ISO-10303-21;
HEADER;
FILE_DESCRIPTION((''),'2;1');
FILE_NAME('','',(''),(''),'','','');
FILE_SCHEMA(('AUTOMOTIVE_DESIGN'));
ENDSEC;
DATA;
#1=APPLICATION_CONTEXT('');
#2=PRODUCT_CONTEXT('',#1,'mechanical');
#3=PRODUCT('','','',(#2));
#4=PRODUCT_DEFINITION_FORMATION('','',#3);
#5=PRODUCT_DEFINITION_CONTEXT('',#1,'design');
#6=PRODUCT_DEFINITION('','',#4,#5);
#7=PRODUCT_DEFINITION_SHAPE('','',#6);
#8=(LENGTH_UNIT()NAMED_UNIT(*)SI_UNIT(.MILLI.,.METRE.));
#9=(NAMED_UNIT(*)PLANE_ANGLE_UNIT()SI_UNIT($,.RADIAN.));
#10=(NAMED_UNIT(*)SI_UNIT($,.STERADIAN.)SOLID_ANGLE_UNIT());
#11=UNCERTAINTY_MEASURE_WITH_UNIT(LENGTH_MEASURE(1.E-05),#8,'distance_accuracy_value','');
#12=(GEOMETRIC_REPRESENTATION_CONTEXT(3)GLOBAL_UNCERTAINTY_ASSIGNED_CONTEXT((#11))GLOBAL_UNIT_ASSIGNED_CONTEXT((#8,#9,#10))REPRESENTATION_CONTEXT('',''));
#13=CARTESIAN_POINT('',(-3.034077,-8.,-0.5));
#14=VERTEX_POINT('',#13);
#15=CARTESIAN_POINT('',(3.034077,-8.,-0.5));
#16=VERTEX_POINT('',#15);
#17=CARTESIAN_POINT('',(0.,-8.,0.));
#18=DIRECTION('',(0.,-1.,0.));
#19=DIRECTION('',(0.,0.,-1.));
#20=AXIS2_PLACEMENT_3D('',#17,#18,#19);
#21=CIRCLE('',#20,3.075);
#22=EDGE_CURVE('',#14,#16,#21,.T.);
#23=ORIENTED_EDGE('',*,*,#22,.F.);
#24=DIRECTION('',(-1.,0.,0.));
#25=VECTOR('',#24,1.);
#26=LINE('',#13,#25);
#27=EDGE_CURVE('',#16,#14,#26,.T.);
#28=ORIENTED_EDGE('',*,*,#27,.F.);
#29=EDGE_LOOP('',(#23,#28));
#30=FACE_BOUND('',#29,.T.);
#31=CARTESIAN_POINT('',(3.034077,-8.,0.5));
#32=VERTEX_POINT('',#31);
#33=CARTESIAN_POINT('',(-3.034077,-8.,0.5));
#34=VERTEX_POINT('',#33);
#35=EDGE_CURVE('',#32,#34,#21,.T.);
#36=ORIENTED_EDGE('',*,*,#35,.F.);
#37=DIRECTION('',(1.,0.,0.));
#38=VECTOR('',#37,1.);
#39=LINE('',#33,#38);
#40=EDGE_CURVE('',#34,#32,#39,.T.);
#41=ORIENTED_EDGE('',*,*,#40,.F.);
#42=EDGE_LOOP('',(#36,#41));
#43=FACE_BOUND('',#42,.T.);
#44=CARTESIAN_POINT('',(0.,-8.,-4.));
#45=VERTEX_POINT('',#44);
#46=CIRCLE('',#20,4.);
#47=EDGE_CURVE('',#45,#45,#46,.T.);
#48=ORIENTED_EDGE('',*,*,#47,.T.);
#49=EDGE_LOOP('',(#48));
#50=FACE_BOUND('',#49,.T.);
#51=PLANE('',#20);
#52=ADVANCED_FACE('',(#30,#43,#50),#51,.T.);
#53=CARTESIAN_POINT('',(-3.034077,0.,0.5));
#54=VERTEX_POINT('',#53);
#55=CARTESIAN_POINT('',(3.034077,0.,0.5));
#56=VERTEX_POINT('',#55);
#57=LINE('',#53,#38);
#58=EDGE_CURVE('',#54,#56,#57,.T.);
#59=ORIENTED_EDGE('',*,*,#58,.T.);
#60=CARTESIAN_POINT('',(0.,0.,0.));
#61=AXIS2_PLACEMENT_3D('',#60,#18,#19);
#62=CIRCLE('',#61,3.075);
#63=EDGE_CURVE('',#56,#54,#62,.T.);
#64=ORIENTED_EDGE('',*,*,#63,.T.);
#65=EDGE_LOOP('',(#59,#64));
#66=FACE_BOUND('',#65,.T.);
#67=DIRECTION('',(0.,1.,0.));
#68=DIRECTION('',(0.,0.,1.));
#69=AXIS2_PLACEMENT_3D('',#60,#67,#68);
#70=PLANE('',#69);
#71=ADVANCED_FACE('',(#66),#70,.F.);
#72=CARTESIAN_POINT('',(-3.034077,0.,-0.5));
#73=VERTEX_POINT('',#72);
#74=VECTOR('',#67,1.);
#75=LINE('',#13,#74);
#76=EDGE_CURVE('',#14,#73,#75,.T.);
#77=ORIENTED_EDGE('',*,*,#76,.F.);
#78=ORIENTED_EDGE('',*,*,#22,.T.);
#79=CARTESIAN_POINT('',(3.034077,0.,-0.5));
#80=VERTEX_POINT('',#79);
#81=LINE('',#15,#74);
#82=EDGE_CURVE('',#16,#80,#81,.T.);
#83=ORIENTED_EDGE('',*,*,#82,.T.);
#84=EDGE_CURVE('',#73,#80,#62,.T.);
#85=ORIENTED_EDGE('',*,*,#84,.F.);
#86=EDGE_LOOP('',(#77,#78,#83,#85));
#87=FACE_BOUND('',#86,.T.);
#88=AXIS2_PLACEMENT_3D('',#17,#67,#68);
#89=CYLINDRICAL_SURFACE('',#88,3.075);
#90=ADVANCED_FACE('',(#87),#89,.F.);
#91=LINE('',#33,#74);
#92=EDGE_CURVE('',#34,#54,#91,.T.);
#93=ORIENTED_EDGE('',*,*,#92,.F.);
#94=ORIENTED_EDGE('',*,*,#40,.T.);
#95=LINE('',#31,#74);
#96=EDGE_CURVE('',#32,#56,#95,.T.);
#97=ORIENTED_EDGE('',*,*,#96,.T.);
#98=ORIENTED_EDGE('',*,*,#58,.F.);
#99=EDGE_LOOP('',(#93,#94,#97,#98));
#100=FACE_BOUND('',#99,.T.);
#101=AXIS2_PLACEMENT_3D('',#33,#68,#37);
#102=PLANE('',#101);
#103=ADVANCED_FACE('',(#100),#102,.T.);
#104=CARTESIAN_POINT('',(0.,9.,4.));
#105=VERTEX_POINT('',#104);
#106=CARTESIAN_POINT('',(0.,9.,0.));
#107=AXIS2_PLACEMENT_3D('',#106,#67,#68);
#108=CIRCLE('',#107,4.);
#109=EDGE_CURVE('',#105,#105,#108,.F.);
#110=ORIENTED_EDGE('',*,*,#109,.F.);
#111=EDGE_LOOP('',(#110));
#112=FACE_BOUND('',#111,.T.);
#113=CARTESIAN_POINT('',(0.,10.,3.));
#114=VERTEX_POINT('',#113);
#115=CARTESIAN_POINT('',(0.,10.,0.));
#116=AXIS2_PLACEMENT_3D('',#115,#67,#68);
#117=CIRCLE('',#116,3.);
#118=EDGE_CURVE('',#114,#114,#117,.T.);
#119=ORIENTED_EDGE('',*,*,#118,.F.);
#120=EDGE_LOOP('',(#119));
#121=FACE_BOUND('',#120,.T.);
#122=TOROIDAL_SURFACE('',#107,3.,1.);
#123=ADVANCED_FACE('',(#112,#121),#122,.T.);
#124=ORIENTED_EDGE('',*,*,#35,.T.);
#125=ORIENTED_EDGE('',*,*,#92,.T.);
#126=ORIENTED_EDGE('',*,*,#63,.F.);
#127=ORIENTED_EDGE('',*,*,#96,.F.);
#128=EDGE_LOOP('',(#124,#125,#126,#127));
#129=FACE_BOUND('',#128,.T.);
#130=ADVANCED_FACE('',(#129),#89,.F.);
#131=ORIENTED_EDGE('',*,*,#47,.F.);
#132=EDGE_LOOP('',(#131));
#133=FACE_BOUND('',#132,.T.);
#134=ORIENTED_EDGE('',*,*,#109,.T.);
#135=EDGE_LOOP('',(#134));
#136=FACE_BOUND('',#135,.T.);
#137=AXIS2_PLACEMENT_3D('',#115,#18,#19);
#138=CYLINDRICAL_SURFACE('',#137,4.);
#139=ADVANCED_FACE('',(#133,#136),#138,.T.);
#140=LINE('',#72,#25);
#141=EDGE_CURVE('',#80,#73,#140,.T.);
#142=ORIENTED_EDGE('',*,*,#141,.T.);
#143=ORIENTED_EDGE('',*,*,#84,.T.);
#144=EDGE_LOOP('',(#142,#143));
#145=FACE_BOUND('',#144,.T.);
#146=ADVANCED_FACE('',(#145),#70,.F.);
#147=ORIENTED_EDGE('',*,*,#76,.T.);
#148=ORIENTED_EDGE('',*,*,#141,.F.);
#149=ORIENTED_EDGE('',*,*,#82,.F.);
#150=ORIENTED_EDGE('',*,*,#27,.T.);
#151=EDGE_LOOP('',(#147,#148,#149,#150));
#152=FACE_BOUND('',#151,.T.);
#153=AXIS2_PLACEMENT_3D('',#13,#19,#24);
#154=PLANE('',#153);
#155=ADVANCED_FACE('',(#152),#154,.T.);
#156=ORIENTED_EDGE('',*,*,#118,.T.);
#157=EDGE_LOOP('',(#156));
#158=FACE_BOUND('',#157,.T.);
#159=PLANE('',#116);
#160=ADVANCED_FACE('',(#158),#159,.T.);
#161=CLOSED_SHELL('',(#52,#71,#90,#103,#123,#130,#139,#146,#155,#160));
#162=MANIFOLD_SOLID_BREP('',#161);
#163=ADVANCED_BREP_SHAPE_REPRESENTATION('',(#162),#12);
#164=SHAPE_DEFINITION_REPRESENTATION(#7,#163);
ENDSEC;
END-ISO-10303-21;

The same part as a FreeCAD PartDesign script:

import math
import FreeCAD as App
import Part
import Sketcher


def edges_at(feature, points):
    """Names of the edges that pass closest to the given points."""
    edges = feature.Shape.Edges
    near = lambda p: min(range(len(edges)), key=lambda i: edges[i].distToShape(Part.Vertex(*p))[0])
    return sorted({f"Edge{near(p) + 1}" for p in points})

doc = App.newDocument("Part")
body = doc.addObject("PartDesign::Body", "Body")

sketch1 = body.newObject("Sketcher::SketchObject", "Sketch")
sketch1.AttachmentSupport = (doc.getObject("XZ_Plane"), [""])
sketch1.MapMode = "FlatFace"
sketch1.addGeometry(Part.Circle(App.Vector(0, 0, 0), App.Vector(0, 0, 1), 4), False)
sketch1.addConstraint(Sketcher.Constraint("Coincident", 0, 3, -1, 1))
sketch1.addConstraint(Sketcher.Constraint("Diameter", 0, 8.0))
pad1 = body.newObject("PartDesign::Pad", "Pad")
pad1.Profile = sketch1
pad1.Length = 10
pad1.Reversed = True

sketch2 = body.newObject("Sketcher::SketchObject", "Sketch001")
sketch2.AttachmentSupport = (doc.getObject("XZ_Plane"), [""])
sketch2.MapMode = "FlatFace"
sketch2.AttachmentOffset = App.Placement(App.Vector(0, 0, 8), App.Rotation())
sketch2.addGeometry(Part.Circle(App.Vector(0, 0, 0), App.Vector(0, 0, 1), 4), False)
sketch2.addGeometry(Part.LineSegment(App.Vector(3, 0.5, 0), App.Vector(-3, 0.5, 0)), False)
sketch2.addGeometry(Part.ArcOfCircle(Part.Circle(App.Vector(0, 0, 0), App.Vector(0, 0, 1), 3.1), math.radians(9), math.radians(171)), False)
sketch2.addGeometry(Part.ArcOfCircle(Part.Circle(App.Vector(0, 0, 0), App.Vector(0, 0, 1), 3.1), math.radians(-171), math.radians(-9)), False)
sketch2.addGeometry(Part.LineSegment(App.Vector(-3, -0.5, 0), App.Vector(3, -0.5, 0)), False)
sketch2.addConstraint(Sketcher.Constraint("Coincident", 1, 1, 2, 1))
sketch2.addConstraint(Sketcher.Constraint("Coincident", 2, 2, 1, 2))
sketch2.addConstraint(Sketcher.Constraint("Coincident", 3, 1, 4, 1))
sketch2.addConstraint(Sketcher.Constraint("Coincident", 4, 2, 3, 2))
sketch2.addConstraint(Sketcher.Constraint("Horizontal", 1))
sketch2.addConstraint(Sketcher.Constraint("Horizontal", 4))
sketch2.addConstraint(Sketcher.Constraint("Coincident", 0, 3, -1, 1))
sketch2.addConstraint(Sketcher.Constraint("Coincident", 2, 3, -1, 1))
sketch2.addConstraint(Sketcher.Constraint("Coincident", 3, 3, -1, 1))
sketch2.addConstraint(Sketcher.Constraint("Equal", 2, 3))
sketch2.addConstraint(Sketcher.Constraint("Vertical", 2, 2, 3, 1))
sketch2.addConstraint(Sketcher.Constraint("Diameter", 0, 8.0))
sketch2.addConstraint(Sketcher.Constraint("Radius", 2, 3.075))
sketch2.addConstraint(Sketcher.Constraint("DistanceY", 3, 1, 2, 2, 1.0))
pad2 = body.newObject("PartDesign::Pad", "Pad001")
pad2.Profile = sketch2
pad2.Length = 8
pad2.Reversed = True
doc.recompute()

fillet = body.newObject("PartDesign::Fillet", "Fillet")
fillet.Base = (pad2, edges_at(pad2, [(0, 10, -4)]))
fillet.Radius = 1

doc.recompute()
